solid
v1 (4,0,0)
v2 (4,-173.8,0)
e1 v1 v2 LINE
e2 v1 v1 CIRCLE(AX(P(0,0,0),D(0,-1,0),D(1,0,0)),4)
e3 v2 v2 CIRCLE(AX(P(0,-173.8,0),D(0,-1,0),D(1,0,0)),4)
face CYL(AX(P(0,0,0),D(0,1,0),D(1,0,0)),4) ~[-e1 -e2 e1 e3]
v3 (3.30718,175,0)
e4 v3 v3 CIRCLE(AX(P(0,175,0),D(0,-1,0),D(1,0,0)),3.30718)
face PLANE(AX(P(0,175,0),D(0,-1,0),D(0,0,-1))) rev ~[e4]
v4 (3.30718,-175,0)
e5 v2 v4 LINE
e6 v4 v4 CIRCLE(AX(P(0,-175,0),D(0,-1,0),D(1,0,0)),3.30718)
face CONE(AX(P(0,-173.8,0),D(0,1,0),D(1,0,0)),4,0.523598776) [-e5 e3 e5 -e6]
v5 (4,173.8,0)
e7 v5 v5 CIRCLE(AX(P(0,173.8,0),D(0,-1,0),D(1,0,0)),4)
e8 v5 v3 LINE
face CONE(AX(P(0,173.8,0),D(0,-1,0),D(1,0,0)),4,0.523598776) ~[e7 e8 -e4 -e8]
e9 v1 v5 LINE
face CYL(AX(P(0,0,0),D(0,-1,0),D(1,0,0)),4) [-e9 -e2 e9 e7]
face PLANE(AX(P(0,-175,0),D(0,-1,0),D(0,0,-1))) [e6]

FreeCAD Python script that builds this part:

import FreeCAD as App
import Part
import Sketcher


def edges_at(feature, points):
    """Names of the edges that pass closest to the given points."""
    edges = feature.Shape.Edges
    near = lambda p: min(range(len(edges)), key=lambda i: edges[i].distToShape(Part.Vertex(*p))[0])
    return sorted({f"Edge{near(p) + 1}" for p in points})

doc = App.newDocument("Part")
body = doc.addObject("PartDesign::Body", "Body")

# Sketch on XZ plane
sketch1 = body.newObject("Sketcher::SketchObject", "Sketch")
sketch1.AttachmentSupport = (doc.getObject("XZ_Plane"), [""])
sketch1.MapMode = "FlatFace"
sketch1.addGeometry(Part.Circle(App.Vector(0, 0, 0), App.Vector(0, 0, 1), 4), False)
sketch1.addConstraint([
    Sketcher.Constraint("Coincident", 0, 3, -1, 1),
    Sketcher.Constraint("Diameter", 0, 8.0),
])
pad1 = body.newObject("PartDesign::Pad", "Pad")
pad1.Profile = sketch1
pad1.Length = 350
pad1.Midplane = True
doc.recompute()

chamfer = body.newObject("PartDesign::Chamfer", "Chamfer")
chamfer.Base = (pad1, edges_at(pad1, [(-4, -175, 0), (-4, 175, 0)]))
chamfer.ChamferType = "Distance and Angle"
chamfer.Size = 1.2
chamfer.Angle = 30

doc.recompute()
